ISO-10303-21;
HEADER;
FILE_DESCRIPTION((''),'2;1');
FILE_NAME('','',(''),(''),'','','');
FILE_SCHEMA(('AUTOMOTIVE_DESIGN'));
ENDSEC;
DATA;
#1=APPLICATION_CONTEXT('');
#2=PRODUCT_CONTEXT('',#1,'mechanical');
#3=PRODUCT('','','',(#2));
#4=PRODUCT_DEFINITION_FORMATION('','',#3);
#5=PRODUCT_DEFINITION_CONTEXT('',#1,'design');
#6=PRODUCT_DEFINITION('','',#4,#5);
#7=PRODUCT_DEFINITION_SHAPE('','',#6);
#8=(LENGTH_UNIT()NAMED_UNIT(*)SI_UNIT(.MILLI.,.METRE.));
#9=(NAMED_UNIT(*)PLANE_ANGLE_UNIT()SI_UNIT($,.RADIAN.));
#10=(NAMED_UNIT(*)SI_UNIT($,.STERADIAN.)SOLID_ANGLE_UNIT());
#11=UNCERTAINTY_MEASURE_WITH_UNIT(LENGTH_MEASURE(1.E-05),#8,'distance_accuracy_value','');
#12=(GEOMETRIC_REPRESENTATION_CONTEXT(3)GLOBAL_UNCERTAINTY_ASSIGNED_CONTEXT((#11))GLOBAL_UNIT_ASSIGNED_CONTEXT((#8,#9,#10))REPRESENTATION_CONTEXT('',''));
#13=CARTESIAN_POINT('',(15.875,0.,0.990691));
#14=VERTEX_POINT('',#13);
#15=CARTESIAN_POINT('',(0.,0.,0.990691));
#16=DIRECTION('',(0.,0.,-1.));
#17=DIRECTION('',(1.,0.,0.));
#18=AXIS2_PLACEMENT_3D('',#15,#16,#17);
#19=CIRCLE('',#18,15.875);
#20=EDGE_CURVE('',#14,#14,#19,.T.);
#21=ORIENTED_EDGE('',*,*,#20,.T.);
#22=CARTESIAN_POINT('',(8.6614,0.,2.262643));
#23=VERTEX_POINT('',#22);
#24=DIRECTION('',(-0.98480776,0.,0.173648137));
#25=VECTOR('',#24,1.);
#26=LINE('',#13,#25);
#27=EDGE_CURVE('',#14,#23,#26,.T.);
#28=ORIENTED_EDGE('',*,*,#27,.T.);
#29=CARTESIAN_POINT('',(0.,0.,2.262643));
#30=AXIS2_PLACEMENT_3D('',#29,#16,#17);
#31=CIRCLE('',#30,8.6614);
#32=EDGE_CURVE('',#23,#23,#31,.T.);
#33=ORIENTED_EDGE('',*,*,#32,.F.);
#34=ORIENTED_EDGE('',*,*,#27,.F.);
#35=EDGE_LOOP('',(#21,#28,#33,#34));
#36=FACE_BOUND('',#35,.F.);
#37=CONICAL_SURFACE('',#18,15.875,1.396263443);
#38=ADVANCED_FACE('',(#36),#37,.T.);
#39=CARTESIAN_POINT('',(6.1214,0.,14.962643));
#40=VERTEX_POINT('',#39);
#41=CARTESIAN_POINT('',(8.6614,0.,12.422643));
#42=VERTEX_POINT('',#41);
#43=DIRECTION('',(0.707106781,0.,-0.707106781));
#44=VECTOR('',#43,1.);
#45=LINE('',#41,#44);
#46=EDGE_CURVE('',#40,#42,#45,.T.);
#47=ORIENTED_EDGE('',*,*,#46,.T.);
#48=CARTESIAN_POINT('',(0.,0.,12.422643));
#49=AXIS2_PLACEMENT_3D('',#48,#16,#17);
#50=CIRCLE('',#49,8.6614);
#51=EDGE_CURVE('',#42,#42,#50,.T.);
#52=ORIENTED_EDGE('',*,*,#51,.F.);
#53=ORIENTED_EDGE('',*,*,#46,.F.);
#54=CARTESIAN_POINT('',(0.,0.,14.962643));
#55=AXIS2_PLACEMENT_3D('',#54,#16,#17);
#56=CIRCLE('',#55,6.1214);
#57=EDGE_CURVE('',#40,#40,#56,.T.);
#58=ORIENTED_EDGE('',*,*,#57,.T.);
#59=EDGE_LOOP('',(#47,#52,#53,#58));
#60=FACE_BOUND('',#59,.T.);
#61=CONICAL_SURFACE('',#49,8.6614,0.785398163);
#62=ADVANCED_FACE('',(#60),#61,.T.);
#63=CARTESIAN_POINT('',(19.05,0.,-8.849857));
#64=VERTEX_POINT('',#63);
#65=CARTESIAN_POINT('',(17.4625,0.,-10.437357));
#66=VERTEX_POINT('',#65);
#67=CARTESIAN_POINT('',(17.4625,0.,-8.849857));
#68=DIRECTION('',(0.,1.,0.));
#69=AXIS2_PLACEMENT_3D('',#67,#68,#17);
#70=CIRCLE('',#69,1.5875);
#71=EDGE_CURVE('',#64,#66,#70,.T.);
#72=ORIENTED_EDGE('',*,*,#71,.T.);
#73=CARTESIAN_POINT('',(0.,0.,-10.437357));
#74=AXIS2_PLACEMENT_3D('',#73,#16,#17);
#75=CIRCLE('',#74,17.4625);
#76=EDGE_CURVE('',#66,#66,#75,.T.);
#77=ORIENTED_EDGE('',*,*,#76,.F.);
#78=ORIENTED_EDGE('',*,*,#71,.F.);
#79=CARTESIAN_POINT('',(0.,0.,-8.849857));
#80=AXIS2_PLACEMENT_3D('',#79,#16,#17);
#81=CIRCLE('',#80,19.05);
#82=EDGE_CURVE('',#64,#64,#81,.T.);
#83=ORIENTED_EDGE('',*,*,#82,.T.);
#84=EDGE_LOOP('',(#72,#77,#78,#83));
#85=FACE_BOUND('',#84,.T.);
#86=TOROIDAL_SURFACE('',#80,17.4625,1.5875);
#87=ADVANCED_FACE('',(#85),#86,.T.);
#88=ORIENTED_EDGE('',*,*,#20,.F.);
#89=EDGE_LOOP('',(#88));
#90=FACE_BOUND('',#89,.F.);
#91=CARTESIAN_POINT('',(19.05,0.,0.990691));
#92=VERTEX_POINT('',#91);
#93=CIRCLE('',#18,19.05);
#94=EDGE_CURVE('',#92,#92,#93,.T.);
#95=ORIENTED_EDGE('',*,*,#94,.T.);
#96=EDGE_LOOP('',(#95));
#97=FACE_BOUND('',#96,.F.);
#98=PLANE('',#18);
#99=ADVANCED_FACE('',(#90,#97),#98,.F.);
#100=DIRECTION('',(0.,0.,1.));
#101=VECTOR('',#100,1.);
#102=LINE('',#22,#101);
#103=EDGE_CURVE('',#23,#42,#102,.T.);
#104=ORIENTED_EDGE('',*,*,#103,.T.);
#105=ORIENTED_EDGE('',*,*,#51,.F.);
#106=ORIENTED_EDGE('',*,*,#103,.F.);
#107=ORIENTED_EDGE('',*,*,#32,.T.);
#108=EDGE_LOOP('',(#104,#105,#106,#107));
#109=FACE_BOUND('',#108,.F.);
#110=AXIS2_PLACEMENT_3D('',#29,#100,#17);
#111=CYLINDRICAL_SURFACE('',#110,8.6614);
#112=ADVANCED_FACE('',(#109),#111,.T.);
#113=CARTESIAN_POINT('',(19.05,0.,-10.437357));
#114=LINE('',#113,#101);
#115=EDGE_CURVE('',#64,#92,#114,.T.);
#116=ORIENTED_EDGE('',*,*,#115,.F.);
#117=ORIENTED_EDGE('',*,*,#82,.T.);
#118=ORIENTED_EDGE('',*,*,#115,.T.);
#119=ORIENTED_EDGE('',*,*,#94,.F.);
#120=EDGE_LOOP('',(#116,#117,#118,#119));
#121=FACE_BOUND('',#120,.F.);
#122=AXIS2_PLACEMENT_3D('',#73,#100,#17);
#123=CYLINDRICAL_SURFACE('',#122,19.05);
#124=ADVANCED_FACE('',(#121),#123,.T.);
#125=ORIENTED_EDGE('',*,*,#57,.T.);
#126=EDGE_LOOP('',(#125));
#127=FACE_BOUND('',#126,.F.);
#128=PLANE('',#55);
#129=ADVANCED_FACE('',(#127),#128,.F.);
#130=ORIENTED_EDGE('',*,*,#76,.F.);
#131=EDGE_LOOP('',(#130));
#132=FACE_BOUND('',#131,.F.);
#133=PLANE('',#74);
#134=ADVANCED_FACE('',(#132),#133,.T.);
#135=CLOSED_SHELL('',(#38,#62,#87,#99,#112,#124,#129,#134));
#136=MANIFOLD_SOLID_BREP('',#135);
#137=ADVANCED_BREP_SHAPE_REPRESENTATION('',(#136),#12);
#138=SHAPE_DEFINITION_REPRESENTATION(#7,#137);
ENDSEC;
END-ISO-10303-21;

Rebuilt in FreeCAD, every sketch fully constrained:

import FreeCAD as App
import Part
import Sketcher
Q = App.Units.Quantity


def edges_at(feature, points):
    """Names of the edges that pass closest to the given points."""
    edges = feature.Shape.Edges
    near = lambda p: min(range(len(edges)), key=lambda i: edges[i].distToShape(Part.Vertex(*p))[0])
    return sorted({f"Edge{near(p) + 1}" for p in points})

doc = App.newDocument("Part")
params = doc.addObject("Spreadsheet::Sheet", "Params")
for row, (alias, value) in enumerate([
    ("sketch1_height", "1 in"),
    ("sketch1_height2", "0.5 in"),
    ("sketch1_width", "0.75 in"),
    ("sketch1_width2", "0.341 in"),
    ("sketch1_width3", "0.125 in"),
    ("revolution_angle", "360 deg"),
    ("chamfer_size", "0.1 in"),
    ("fillet_radius", "0.0625 in"),
], start=1):
    params.set(f"A{row}", alias)
    params.set(f"B{row}", "=" + value)
    params.setAlias(f"B{row}", alias)

body = doc.addObject("PartDesign::Body", "Body")

# Sketch on XZ plane
sketch1 = body.newObject("Sketcher::SketchObject", "Sketch")
sketch1.AttachmentSupport = (doc.getObject("XZ_Plane"), [""])
sketch1.MapMode = "FlatFace"
sketch1.addGeometry(Part.LineSegment(App.Vector(8.7, 15, 0), App.Vector(0, 15, 0)), False)
sketch1.addGeometry(Part.LineSegment(App.Vector(0, 15, 0), App.Vector(0, -10.4, 0)), False)
sketch1.addGeometry(Part.LineSegment(App.Vector(0, -10.4, 0), App.Vector(19.1, -10.4, 0)), False)
sketch1.addGeometry(Part.LineSegment(App.Vector(19.1, -10.4, 0), App.Vector(19.1, 1, 0)), False)
sketch1.addGeometry(Part.LineSegment(App.Vector(19.1, 1, 0), App.Vector(15.9, 1, 0)), False)
sketch1.addGeometry(Part.LineSegment(App.Vector(15.9, 1, 0), App.Vector(8.7, 2.3, 0)), False)
sketch1.addGeometry(Part.LineSegment(App.Vector(8.7, 2.3, 0), App.Vector(8.7, 15, 0)), False)
sketch1.addConstraint(Sketcher.Constraint("Coincident", 0, 2, 1, 1))
sketch1.addConstraint(Sketcher.Constraint("Coincident", 1, 2, 2, 1))
sketch1.addConstraint(Sketcher.Constraint("Coincident", 2, 2, 3, 1))
sketch1.addConstraint(Sketcher.Constraint("Coincident", 3, 2, 4, 1))
sketch1.addConstraint(Sketcher.Constraint("Coincident", 4, 2, 5, 1))
sketch1.addConstraint(Sketcher.Constraint("Coincident", 5, 2, 6, 1))
sketch1.addConstraint(Sketcher.Constraint("Coincident", 6, 2, 0, 1))
sketch1.addConstraint(Sketcher.Constraint("Horizontal", 0))
sketch1.addConstraint(Sketcher.Constraint("Vertical", 1))
sketch1.addConstraint(Sketcher.Constraint("Horizontal", 2))
sketch1.addConstraint(Sketcher.Constraint("Vertical", 3))
sketch1.addConstraint(Sketcher.Constraint("Horizontal", 4))
sketch1.addConstraint(Sketcher.Constraint("Vertical", 6))
sketch1.addConstraint(Sketcher.Constraint("PointOnObject", 0, 2, -2))
sketch1.addConstraint(Sketcher.Constraint("DistanceY", 1, 2, 1, 1, Q("1 in")))
sketch1.addConstraint(Sketcher.Constraint("DistanceY", 6, 1, 6, 2, Q("0.5 in")))
sketch1.addConstraint(Sketcher.Constraint("Angle", 5, Q("170.000002 deg")))
sketch1.addConstraint(Sketcher.Constraint("DistanceX", 2, 1, 2, 2, Q("0.75 in")))
sketch1.addConstraint(Sketcher.Constraint("DistanceX", 0, 2, 0, 1, Q("0.341 in")))
sketch1.addConstraint(Sketcher.Constraint("DistanceX", 4, 2, 4, 1, Q("0.125 in")))
sketch1.addConstraint(Sketcher.Constraint("DistanceY", -1, 1, 3, 2, Q("0.990691 mm")))
sketch1.setExpression("Constraints[14]", "Params.sketch1_height")
sketch1.setExpression("Constraints[15]", "Params.sketch1_height2")
sketch1.setExpression("Constraints[17]", "Params.sketch1_width")
sketch1.setExpression("Constraints[18]", "Params.sketch1_width2")
sketch1.setExpression("Constraints[19]", "Params.sketch1_width3")
revolution = body.newObject("PartDesign::Revolution", "Revolution")
revolution.Profile = sketch1
revolution.ReferenceAxis = (sketch1, ["V_Axis"])
revolution.setExpression("Angle", "Params.revolution_angle")
doc.recompute()

chamfer = body.newObject("PartDesign::Chamfer", "Chamfer")
chamfer.Base = (revolution, edges_at(revolution, [(-8.661, 0, 14.963)]))
chamfer.setExpression("Size", "Params.chamfer_size")
doc.recompute()

fillet = body.newObject("PartDesign::Fillet", "Fillet")
fillet.Base = (chamfer, edges_at(chamfer, [(-19.05, 0, -10.437)]))
fillet.setExpression("Radius", "Params.fillet_radius")

doc.recompute()
